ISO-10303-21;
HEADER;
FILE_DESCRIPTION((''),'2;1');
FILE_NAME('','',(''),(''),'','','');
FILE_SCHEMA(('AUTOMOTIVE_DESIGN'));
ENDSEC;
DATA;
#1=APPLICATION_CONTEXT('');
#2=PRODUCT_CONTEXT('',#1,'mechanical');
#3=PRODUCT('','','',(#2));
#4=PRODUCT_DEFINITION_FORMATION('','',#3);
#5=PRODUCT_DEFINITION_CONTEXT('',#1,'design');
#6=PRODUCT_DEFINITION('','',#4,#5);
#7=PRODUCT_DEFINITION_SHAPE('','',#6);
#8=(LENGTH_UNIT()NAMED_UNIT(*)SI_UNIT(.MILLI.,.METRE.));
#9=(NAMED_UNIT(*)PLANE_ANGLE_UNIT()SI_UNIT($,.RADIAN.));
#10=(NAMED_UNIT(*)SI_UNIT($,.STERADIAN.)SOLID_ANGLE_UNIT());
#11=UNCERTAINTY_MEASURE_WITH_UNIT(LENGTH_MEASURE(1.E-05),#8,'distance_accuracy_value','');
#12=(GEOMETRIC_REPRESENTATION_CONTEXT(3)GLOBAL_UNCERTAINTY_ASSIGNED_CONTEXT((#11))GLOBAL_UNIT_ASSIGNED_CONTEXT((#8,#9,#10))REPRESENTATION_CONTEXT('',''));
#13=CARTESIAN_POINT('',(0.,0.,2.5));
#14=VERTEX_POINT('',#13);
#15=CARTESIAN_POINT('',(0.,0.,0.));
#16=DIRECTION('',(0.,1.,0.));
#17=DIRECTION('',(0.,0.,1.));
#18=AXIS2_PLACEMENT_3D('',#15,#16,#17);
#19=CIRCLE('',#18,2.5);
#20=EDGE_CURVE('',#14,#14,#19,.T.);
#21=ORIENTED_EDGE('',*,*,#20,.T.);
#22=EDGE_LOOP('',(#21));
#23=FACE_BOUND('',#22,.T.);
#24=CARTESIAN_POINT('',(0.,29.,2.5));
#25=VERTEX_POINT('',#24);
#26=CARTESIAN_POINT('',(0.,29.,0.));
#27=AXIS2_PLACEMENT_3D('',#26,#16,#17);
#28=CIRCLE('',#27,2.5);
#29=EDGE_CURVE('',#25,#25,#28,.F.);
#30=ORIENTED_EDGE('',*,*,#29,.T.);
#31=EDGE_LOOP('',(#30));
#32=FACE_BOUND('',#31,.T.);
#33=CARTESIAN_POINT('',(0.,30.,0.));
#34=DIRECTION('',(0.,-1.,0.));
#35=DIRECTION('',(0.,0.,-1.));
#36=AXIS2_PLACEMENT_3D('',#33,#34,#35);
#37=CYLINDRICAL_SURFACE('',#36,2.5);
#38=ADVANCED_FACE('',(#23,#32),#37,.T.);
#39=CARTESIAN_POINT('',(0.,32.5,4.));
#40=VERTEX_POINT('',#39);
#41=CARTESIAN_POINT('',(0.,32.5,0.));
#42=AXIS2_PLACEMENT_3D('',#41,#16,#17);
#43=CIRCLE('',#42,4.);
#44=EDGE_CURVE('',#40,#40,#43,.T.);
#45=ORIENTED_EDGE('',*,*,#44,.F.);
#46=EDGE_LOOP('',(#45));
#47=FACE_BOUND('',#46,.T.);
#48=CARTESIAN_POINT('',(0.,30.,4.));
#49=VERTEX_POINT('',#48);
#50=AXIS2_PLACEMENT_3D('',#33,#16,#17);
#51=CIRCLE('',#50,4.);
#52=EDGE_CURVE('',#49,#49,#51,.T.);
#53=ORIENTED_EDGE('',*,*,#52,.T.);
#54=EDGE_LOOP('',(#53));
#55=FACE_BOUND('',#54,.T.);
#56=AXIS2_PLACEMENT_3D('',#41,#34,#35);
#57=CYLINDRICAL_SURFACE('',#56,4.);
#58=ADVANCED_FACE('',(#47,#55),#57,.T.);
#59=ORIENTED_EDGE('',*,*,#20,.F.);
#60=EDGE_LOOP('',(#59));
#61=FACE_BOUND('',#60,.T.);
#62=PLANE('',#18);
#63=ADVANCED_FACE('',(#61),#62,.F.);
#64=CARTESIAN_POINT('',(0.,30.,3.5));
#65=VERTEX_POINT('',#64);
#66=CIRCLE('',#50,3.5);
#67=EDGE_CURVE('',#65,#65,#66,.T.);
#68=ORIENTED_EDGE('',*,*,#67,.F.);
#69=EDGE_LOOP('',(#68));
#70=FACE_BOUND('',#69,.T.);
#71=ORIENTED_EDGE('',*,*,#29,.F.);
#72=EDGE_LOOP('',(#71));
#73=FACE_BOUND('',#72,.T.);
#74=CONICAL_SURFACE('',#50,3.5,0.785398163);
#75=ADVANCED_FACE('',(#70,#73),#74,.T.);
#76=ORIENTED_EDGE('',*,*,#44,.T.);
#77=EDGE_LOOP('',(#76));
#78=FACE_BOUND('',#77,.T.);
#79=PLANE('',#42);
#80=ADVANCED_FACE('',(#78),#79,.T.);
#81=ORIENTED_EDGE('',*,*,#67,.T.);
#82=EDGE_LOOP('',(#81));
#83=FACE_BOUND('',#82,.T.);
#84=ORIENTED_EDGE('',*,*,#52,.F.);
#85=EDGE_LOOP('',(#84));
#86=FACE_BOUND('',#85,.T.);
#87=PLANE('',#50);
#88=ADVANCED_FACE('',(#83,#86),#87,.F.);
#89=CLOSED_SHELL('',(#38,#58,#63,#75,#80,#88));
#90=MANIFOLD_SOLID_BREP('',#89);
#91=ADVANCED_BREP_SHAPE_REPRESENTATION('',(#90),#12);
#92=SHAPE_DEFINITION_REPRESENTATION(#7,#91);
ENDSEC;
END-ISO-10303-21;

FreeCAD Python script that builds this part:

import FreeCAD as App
import Part
import Sketcher
from FreeCAD import Vector


def edges_at(feature, points):
    """Names of the edges that pass closest to the given points."""
    edges = feature.Shape.Edges
    near = lambda p: min(range(len(edges)), key=lambda i: edges[i].distToShape(Part.Vertex(*p))[0])
    return sorted({f"Edge{near(p) + 1}" for p in points})

doc = App.newDocument("Part")
body = doc.addObject("PartDesign::Body", "Body")

# Sketch on XZ plane
sketch1 = body.newObject("Sketcher::SketchObject", "Sketch")
sketch1.AttachmentSupport = (doc.getObject("XZ_Plane"), [""])
sketch1.MapMode = "FlatFace"
sketch1.addGeometry(Part.Circle(Vector(0, 0, 0), Vector(0, 0, 1), 2.5), False)
sketch1.addConstraint(Sketcher.Constraint("Coincident", 0, 3, -1, 1))
sketch1.addConstraint(Sketcher.Constraint("Diameter", 0, 5.0))
pad1 = body.newObject("PartDesign::Pad", "Pad")
pad1.Profile = sketch1
pad1.Length = 30
pad1.Reversed = True

# Sketch on XZ plane
sketch2 = body.newObject("Sketcher::SketchObject", "Sketch001")
sketch2.AttachmentSupport = (doc.getObject("XZ_Plane"), [""])
sketch2.MapMode = "FlatFace"
sketch2.AttachmentOffset = App.Placement(Vector(0, 0, -30), App.Rotation())
sketch2.addGeometry(Part.Circle(Vector(0, 0, 0), Vector(0, 0, 1), 4), False)
sketch2.addConstraint(Sketcher.Constraint("Coincident", 0, 3, -1, 1))
sketch2.addConstraint(Sketcher.Constraint("Diameter", 0, 8.0))
pad2 = body.newObject("PartDesign::Pad", "Pad001")
pad2.Profile = sketch2
pad2.Length = 2.5
pad2.Reversed = True
doc.recompute()

chamfer = body.newObject("PartDesign::Chamfer", "Chamfer")
chamfer.Base = (pad2, edges_at(pad2, [(-2.5, 30, 0)]))
chamfer.Size = 1

doc.recompute()
